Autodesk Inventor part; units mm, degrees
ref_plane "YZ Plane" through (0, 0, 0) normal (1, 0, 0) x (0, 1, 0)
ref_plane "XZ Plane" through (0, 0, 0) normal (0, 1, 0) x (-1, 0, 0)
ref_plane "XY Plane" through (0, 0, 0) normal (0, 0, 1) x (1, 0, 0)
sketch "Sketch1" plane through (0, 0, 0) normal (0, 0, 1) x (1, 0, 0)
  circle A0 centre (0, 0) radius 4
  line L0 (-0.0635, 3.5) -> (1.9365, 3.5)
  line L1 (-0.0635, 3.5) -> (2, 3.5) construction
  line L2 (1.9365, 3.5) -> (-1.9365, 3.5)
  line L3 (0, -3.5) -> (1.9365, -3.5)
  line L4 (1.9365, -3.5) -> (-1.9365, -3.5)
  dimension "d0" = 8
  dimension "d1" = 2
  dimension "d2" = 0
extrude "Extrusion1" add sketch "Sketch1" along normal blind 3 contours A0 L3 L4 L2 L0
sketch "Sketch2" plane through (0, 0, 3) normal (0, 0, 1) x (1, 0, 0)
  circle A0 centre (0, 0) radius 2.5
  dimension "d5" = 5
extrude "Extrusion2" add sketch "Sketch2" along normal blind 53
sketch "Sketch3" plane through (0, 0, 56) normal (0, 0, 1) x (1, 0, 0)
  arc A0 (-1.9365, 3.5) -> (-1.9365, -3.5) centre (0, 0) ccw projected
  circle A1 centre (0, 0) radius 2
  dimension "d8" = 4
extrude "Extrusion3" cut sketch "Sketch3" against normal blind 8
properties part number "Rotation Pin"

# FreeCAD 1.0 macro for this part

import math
import FreeCAD as App
import Part
import Sketcher

V = App.Vector
Q = App.Units.Quantity

doc = App.newDocument("Part")
body = doc.addObject("PartDesign::Body", "Body")

# Sketch on XY plane
sketch1 = body.newObject("Sketcher::SketchObject", "Sketch")
sketch1.AttachmentSupport = (doc.getObject("XY_Plane"), [""])
sketch1.MapMode = "FlatFace"
sketch1.addGeometry([
    Part.ArcOfCircle(Part.Circle(V(0, 0, 0), V(0, 0, 1), 4), math.radians(-61), math.radians(61)),
    Part.LineSegment(V(1.9, 3.5, 0), V(-1.9, 3.5, 0)),
    Part.ArcOfCircle(Part.Circle(V(0, 0, 0), V(0, 0, 1), 4), math.radians(119), math.radians(241)),
    Part.LineSegment(V(-1.9, -3.5, 0), V(1.9, -3.5, 0)),
], False)
sketch1.addConstraint([
    Sketcher.Constraint("Coincident", 0, 2, 1, 1),
    Sketcher.Constraint("Coincident", 1, 2, 2, 1),
    Sketcher.Constraint("Coincident", 2, 2, 3, 1),
    Sketcher.Constraint("Coincident", 3, 2, 0, 1),
    Sketcher.Constraint("Horizontal", 1),
    Sketcher.Constraint("Horizontal", 3),
    Sketcher.Constraint("Coincident", 0, 3, -1, 1),
    Sketcher.Constraint("Coincident", 2, 3, -1, 1),
    Sketcher.Constraint("Equal", 0, 2),
    Sketcher.Constraint("Vertical", 1, 2, 2, 2),
    Sketcher.Constraint("Radius", 0, Q("4 mm")),
    Sketcher.Constraint("DistanceY", 2, 2, 1, 2, Q("7 mm")),
])
pad1 = body.newObject("PartDesign::Pad", "Pad")
pad1.Profile = sketch1
pad1.Length = 3

# Sketch on XY plane
sketch2 = body.newObject("Sketcher::SketchObject", "Sketch001")
sketch2.AttachmentSupport = (doc.getObject("XY_Plane"), [""])
sketch2.MapMode = "FlatFace"
sketch2.AttachmentOffset = App.Placement(V(0, 0, 3), App.Rotation())
sketch2.addGeometry(Part.Circle(V(0, 0, 0), V(0, 0, 1), 2.5), False)
sketch2.addConstraint([
    Sketcher.Constraint("Coincident", 0, 3, -1, 1),
    Sketcher.Constraint("Diameter", 0, Q("5 mm")),
])
pad2 = body.newObject("PartDesign::Pad", "Pad001")
pad2.Profile = sketch2
pad2.Length = 53

# Sketch on XY plane
sketch3 = body.newObject("Sketcher::SketchObject", "Sketch002")
sketch3.AttachmentSupport = (doc.getObject("XY_Plane"), [""])
sketch3.MapMode = "FlatFace"
sketch3.AttachmentOffset = App.Placement(V(0, 0, 56), App.Rotation())
sketch3.addGeometry(Part.Circle(V(0, 0, 0), V(0, 0, 1), 2), False)
sketch3.addConstraint([
    Sketcher.Constraint("Coincident", 0, 3, -1, 1),
    Sketcher.Constraint("Diameter", 0, Q("4 mm")),
])
pocket1 = body.newObject("PartDesign::Pocket", "Pocket")
pocket1.Profile = sketch3
pocket1.Length = 8

doc.recompute()
